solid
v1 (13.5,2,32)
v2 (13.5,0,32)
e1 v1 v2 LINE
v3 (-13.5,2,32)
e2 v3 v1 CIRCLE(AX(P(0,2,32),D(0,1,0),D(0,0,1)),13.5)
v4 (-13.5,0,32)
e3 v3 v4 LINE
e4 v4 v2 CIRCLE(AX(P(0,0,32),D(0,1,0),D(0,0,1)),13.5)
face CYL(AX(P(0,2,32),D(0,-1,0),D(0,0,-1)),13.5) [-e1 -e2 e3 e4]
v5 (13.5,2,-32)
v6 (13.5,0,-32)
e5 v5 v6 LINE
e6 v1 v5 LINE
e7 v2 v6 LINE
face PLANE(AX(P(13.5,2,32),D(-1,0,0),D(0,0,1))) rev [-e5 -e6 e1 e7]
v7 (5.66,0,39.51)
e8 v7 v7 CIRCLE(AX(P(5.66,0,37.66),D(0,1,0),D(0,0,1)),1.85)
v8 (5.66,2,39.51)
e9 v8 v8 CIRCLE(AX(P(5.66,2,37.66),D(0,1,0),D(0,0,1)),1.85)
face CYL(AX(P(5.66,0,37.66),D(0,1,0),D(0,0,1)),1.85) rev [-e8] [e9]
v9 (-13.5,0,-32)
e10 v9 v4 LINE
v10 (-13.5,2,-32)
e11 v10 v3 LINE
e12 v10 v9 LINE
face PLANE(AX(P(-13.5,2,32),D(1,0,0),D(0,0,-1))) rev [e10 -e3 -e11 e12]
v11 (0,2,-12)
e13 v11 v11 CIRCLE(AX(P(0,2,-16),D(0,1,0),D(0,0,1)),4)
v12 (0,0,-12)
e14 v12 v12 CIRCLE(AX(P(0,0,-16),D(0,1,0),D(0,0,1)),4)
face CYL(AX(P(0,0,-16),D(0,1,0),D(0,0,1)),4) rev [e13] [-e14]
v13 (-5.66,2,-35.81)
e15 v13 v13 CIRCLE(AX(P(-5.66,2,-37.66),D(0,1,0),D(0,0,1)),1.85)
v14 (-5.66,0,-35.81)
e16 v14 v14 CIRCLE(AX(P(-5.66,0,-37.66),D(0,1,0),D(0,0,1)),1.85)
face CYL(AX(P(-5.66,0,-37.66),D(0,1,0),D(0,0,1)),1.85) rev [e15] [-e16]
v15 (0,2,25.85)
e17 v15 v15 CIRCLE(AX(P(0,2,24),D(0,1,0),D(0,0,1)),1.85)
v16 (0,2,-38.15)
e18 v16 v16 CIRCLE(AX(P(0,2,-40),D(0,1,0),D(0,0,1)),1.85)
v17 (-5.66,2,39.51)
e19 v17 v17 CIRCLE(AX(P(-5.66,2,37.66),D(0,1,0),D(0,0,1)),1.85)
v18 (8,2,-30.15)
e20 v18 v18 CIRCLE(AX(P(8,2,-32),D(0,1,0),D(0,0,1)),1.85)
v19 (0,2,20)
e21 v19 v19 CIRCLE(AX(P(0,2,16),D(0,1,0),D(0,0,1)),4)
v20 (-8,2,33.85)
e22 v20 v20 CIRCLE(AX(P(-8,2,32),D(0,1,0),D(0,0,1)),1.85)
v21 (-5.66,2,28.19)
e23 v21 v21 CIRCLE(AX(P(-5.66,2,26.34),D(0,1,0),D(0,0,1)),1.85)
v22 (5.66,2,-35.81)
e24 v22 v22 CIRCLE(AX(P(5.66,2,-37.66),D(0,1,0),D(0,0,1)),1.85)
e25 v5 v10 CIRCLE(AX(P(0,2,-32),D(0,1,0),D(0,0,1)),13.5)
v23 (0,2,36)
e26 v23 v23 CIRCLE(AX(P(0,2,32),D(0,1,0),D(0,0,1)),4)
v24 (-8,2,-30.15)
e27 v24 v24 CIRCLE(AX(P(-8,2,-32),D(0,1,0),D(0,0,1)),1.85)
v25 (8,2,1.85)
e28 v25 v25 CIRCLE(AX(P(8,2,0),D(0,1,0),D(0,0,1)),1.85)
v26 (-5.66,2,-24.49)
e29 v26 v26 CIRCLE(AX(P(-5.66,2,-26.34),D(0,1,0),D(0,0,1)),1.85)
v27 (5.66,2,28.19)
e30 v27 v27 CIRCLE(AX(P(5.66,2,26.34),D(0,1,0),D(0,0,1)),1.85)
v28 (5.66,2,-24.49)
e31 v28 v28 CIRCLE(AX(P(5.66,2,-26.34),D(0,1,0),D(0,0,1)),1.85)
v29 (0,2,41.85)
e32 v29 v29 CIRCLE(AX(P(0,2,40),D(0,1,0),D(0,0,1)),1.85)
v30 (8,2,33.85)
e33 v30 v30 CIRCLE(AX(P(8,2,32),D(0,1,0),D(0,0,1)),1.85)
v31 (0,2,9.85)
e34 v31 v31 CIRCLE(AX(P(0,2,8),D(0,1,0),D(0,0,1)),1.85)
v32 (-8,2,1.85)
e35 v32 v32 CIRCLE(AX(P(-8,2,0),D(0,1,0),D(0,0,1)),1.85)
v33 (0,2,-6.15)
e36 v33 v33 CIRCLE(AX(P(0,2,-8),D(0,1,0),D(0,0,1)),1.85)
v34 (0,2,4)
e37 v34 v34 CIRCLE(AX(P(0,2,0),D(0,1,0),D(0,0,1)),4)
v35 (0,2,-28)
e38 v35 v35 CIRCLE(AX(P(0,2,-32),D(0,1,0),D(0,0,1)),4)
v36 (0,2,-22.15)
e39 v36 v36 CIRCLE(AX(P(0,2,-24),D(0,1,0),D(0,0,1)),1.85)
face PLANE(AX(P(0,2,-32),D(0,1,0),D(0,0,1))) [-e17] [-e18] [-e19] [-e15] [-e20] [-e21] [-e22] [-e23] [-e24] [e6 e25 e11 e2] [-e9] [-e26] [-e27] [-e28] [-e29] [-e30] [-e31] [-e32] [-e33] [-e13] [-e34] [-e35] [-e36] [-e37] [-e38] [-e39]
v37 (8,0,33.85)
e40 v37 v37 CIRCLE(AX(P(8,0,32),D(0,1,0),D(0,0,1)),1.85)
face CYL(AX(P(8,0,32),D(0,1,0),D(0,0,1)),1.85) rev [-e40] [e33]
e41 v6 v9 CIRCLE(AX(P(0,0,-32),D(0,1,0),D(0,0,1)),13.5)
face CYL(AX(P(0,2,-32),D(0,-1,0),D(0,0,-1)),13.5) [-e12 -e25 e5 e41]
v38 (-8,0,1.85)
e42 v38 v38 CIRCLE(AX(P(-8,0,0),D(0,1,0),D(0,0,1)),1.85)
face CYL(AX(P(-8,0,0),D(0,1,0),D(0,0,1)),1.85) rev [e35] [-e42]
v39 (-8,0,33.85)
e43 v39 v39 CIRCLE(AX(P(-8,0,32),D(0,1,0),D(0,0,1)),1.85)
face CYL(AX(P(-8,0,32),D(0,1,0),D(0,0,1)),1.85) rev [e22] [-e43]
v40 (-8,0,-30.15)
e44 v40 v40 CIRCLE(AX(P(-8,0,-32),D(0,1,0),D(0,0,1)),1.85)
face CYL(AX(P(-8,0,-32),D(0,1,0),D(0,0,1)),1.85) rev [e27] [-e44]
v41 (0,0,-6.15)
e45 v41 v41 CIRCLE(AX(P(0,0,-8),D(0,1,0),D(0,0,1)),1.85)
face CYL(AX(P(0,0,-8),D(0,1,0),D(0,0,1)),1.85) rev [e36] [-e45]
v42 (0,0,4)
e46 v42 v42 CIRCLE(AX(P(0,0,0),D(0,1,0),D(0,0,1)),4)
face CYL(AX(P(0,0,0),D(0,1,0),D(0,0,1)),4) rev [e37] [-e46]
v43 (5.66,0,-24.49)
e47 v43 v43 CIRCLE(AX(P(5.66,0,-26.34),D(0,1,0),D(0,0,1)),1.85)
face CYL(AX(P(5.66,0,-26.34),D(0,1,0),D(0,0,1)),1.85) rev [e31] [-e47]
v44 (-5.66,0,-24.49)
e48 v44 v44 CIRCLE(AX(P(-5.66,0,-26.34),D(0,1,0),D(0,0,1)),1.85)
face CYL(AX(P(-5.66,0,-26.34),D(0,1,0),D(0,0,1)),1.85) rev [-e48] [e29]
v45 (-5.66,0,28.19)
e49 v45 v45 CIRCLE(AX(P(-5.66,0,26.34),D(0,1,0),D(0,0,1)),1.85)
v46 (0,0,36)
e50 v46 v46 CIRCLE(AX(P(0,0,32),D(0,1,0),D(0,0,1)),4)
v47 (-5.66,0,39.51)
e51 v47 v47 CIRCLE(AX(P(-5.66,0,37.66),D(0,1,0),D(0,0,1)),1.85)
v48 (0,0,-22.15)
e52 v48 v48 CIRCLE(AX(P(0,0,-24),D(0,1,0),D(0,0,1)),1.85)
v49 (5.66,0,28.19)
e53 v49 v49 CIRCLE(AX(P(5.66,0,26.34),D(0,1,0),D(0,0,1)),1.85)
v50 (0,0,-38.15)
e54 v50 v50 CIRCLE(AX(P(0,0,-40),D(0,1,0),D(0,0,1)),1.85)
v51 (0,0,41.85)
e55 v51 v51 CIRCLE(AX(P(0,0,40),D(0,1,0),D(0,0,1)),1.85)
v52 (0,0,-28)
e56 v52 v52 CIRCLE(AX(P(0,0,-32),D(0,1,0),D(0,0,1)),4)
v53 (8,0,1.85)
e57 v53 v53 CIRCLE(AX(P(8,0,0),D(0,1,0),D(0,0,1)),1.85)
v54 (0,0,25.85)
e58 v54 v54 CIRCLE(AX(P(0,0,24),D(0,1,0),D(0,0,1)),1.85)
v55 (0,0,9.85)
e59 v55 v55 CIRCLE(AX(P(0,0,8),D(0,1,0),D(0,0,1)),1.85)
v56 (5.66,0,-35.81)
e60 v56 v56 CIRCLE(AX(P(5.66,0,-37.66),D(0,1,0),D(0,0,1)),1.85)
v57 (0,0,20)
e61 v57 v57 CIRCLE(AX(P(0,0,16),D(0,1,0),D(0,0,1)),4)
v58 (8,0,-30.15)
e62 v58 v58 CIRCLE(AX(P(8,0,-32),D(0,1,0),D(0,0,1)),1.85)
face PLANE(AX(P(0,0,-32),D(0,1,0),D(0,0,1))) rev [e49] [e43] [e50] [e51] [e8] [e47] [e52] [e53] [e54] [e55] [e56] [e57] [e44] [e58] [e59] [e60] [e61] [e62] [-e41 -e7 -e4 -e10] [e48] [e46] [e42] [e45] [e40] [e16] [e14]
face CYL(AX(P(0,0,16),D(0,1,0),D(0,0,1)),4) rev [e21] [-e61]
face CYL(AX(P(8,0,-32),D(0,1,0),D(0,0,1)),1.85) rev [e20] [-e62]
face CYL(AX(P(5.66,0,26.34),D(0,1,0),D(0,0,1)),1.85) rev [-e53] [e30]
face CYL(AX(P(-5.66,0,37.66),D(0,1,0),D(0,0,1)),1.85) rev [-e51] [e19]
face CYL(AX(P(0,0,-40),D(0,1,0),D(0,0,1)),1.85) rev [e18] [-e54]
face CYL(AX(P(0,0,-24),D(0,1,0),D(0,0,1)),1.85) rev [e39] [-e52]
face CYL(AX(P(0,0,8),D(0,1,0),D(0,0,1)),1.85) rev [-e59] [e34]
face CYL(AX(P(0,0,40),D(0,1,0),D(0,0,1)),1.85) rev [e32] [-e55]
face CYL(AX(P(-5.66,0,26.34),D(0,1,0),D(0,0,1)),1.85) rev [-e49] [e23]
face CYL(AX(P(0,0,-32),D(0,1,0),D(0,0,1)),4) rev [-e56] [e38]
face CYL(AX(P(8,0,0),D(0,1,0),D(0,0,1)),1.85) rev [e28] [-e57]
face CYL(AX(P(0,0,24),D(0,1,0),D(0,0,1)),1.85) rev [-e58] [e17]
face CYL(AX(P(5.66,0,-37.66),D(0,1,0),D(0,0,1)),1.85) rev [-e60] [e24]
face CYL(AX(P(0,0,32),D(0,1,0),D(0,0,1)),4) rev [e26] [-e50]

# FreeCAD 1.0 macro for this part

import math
import FreeCAD as App
import Part
import Sketcher

V = App.Vector

doc = App.newDocument("Part")
body = doc.addObject("PartDesign::Body", "Body")

# Sketch on XZ plane
sketch1 = body.newObject("Sketcher::SketchObject", "Sketch")
sketch1.AttachmentSupport = (doc.getObject("XZ_Plane"), [""])
sketch1.MapMode = "FlatFace"
sketch1.addGeometry([
    Part.LineSegment(V(-13.5, -32, 0), V(-13.5, 32, 0)),
    Part.ArcOfCircle(Part.Circle(V(0, 32, 0), V(0, 0, 1), 13.5), math.radians(0), math.radians(180)),
    Part.LineSegment(V(13.5, 32, 0), V(13.5, -32, 0)),
    Part.ArcOfCircle(Part.Circle(V(0, -32, 0), V(0, 0, 1), 13.5), math.radians(180), math.radians(360)),
], False)
sketch1.addConstraint([
    Sketcher.Constraint("Tangent", 0, 2, 1, 2),
    Sketcher.Constraint("Tangent", 1, 1, 2, 1),
    Sketcher.Constraint("Tangent", 2, 2, 3, 2),
    Sketcher.Constraint("Tangent", 3, 1, 0, 1),
    Sketcher.Constraint("Vertical", 0),
    Sketcher.Constraint("Vertical", 2),
    Sketcher.Constraint("Symmetric", 1, 3, 3, 3, -1, 1),
    Sketcher.Constraint("Radius", 1, 13.5),
    Sketcher.Constraint("DistanceY", 0, 1, 0, 2, 64.0),
])
pad1 = body.newObject("PartDesign::Pad", "Pad")
pad1.Profile = sketch1
pad1.Length = 2
pad1.Reversed = True

# Sketch on XZ plane
sketch2 = body.newObject("Sketcher::SketchObject", "Sketch001")
sketch2.AttachmentSupport = (doc.getObject("XZ_Plane"), [""])
sketch2.MapMode = "FlatFace"
sketch2.AttachmentOffset = App.Placement(V(0, 0, -2), App.Rotation())
sketch2.addGeometry([
    Part.Circle(V(0, 16, 0), V(0, 0, 1), 4),  # 0
    Part.Circle(V(0, -16, 0), V(0, 0, 1), 4),  # 1
    Part.Circle(V(0, 0, 0), V(0, 0, 1), 4),  # 2
    Part.Circle(V(0, -8, 0), V(0, 0, 1), 1.85),  # 3
    Part.Circle(V(0, 8, 0), V(0, 0, 1), 1.85),  # 4
    Part.Circle(V(8, 0, 0), V(0, 0, 1), 1.85),  # 5
    Part.Circle(V(-8, 0, 0), V(0, 0, 1), 1.85),  # 6
    Part.Circle(V(0, 24, 0), V(0, 0, 1), 1.85),  # 7
    Part.Circle(V(8, 32, 0), V(0, 0, 1), 1.85),  # 8
    Part.Circle(V(0, 32, 0), V(0, 0, 1), 4),  # 9
    Part.Circle(V(-8, 32, 0), V(0, 0, 1), 1.85),  # 10
    Part.Circle(V(-5.66, 37.66, 0), V(0, 0, 1), 1.85),  # 11
    Part.Circle(V(5.66, 37.66, 0), V(0, 0, 1), 1.85),  # 12
    Part.Circle(V(0, 40, 0), V(0, 0, 1), 1.85),  # 13
    Part.Circle(V(-5.66, 26.34, 0), V(0, 0, 1), 1.85),  # 14
    Part.Circle(V(5.66, 26.34, 0), V(0, 0, 1), 1.85),  # 15
    Part.Circle(V(0, -40, 0), V(0, 0, 1), 1.85),  # 16
    Part.Circle(V(8, -32, 0), V(0, 0, 1), 1.85),  # 17
    Part.Circle(V(0, -32, 0), V(0, 0, 1), 4),  # 18
    Part.Circle(V(-8, -32, 0), V(0, 0, 1), 1.85),  # 19
    Part.Circle(V(-5.66, -26.34, 0), V(0, 0, 1), 1.85),  # 20
    Part.Circle(V(5.66, -26.34, 0), V(0, 0, 1), 1.85),  # 21
    Part.Circle(V(0, -24, 0), V(0, 0, 1), 1.85),  # 22
    Part.Circle(V(-5.66, -37.66, 0), V(0, 0, 1), 1.85),  # 23
    Part.Circle(V(5.66, -37.66, 0), V(0, 0, 1), 1.85),  # 24
], False)
sketch2.addConstraint([
    Sketcher.Constraint("Coincident", 2, 3, -1, 1),
    Sketcher.Constraint("Equal", 0, 1),
    Sketcher.Constraint("Equal", 1, 2),
    Sketcher.Constraint("Equal", 3, 4),
    Sketcher.Constraint("Equal", 4, 5),
    Sketcher.Constraint("Equal", 5, 6),
    Sketcher.Constraint("Equal", 6, 7),
    Sketcher.Constraint("Equal", 7, 8),
    Sketcher.Constraint("Equal", 2, 9),
    Sketcher.Constraint("Equal", 8, 10),
    Sketcher.Constraint("Equal", 10, 11),
    Sketcher.Constraint("Equal", 11, 12),
    Sketcher.Constraint("Equal", 12, 13),
    Sketcher.Constraint("Equal", 13, 14),
    Sketcher.Constraint("Equal", 14, 15),
    Sketcher.Constraint("Equal", 15, 16),
    Sketcher.Constraint("Equal", 16, 17),
    Sketcher.Constraint("Equal", 9, 18),
    Sketcher.Constraint("Equal", 17, 19),
    Sketcher.Constraint("Equal", 19, 20),
    Sketcher.Constraint("Equal", 20, 21),
    Sketcher.Constraint("Equal", 21, 22),
    Sketcher.Constraint("Equal", 22, 23),
    Sketcher.Constraint("Equal", 23, 24),
    Sketcher.Constraint("Symmetric", 0, 3, 1, 3, -1, 1),
    Sketcher.Constraint("Symmetric", 3, 3, 4, 3, -1, 1),
    Sketcher.Constraint("Symmetric", 5, 3, 6, 3, -1, 1),
    Sketcher.Constraint("Symmetric", 13, 3, 16, 3, -1, 1),
    Sketcher.Constraint("Symmetric", 10, 3, 17, 3, -1, 1),
    Sketcher.Constraint("Symmetric", 9, 3, 18, 3, -1, 1),
    Sketcher.Constraint("Symmetric", 8, 3, 19, 3, -1, 1),
    Sketcher.Constraint("Symmetric", 15, 3, 20, 3, -1, 1),
    Sketcher.Constraint("Symmetric", 14, 3, 21, 3, -1, 1),
    Sketcher.Constraint("Symmetric", 7, 3, 22, 3, -1, 1),
    Sketcher.Constraint("Symmetric", 12, 3, 23, 3, -1, 1),
    Sketcher.Constraint("Symmetric", 11, 3, 24, 3, -1, 1),
    Sketcher.Constraint("Symmetric", 8, 3, 10, 3, -2),
    Sketcher.Constraint("Symmetric", 11, 3, 12, 3, -2),
    Sketcher.Constraint("Symmetric", 14, 3, 15, 3, -2),
    Sketcher.Constraint("PointOnObject", 0, 3, -2),
    Sketcher.Constraint("PointOnObject", 3, 3, -2),
    Sketcher.Constraint("PointOnObject", 5, 3, -1),
    Sketcher.Constraint("PointOnObject", 7, 3, -2),
    Sketcher.Constraint("PointOnObject", 9, 3, -2),
    Sketcher.Constraint("PointOnObject", 13, 3, -2),
    Sketcher.Constraint("Horizontal", 8, 3, 9, 3),
    Sketcher.Constraint("Vertical", 5, 3, 8, 3),
    Sketcher.Constraint("Vertical", 11, 3, 14, 3),
    Sketcher.Constraint("Diameter", 0, 8.0),
    Sketcher.Constraint("Diameter", 3, 3.7),
    Sketcher.Constraint("DistanceY", -1, 1, 0, 3, 16.0),
    Sketcher.Constraint("DistanceY", 3, 3, -1, 1, 8.0),
    Sketcher.Constraint("DistanceX", -1, 1, 5, 3, 8.0),
    Sketcher.Constraint("DistanceY", -1, 1, 7, 3, 24.0),
    Sketcher.Constraint("DistanceY", -1, 1, 8, 3, 32.0),
    Sketcher.Constraint("DistanceY", -1, 1, 13, 3, 40.0),
    Sketcher.Constraint("DistanceX", 11, 3, -1, 1, 5.66),
    Sketcher.Constraint("DistanceY", -1, 1, 11, 3, 37.66),
    Sketcher.Constraint("DistanceY", -1, 1, 14, 3, 26.34),
])
pocket1 = body.newObject("PartDesign::Pocket", "Pocket")
pocket1.Profile = sketch2
pocket1.Length = 2
pocket1.Reversed = True

doc.recompute()
